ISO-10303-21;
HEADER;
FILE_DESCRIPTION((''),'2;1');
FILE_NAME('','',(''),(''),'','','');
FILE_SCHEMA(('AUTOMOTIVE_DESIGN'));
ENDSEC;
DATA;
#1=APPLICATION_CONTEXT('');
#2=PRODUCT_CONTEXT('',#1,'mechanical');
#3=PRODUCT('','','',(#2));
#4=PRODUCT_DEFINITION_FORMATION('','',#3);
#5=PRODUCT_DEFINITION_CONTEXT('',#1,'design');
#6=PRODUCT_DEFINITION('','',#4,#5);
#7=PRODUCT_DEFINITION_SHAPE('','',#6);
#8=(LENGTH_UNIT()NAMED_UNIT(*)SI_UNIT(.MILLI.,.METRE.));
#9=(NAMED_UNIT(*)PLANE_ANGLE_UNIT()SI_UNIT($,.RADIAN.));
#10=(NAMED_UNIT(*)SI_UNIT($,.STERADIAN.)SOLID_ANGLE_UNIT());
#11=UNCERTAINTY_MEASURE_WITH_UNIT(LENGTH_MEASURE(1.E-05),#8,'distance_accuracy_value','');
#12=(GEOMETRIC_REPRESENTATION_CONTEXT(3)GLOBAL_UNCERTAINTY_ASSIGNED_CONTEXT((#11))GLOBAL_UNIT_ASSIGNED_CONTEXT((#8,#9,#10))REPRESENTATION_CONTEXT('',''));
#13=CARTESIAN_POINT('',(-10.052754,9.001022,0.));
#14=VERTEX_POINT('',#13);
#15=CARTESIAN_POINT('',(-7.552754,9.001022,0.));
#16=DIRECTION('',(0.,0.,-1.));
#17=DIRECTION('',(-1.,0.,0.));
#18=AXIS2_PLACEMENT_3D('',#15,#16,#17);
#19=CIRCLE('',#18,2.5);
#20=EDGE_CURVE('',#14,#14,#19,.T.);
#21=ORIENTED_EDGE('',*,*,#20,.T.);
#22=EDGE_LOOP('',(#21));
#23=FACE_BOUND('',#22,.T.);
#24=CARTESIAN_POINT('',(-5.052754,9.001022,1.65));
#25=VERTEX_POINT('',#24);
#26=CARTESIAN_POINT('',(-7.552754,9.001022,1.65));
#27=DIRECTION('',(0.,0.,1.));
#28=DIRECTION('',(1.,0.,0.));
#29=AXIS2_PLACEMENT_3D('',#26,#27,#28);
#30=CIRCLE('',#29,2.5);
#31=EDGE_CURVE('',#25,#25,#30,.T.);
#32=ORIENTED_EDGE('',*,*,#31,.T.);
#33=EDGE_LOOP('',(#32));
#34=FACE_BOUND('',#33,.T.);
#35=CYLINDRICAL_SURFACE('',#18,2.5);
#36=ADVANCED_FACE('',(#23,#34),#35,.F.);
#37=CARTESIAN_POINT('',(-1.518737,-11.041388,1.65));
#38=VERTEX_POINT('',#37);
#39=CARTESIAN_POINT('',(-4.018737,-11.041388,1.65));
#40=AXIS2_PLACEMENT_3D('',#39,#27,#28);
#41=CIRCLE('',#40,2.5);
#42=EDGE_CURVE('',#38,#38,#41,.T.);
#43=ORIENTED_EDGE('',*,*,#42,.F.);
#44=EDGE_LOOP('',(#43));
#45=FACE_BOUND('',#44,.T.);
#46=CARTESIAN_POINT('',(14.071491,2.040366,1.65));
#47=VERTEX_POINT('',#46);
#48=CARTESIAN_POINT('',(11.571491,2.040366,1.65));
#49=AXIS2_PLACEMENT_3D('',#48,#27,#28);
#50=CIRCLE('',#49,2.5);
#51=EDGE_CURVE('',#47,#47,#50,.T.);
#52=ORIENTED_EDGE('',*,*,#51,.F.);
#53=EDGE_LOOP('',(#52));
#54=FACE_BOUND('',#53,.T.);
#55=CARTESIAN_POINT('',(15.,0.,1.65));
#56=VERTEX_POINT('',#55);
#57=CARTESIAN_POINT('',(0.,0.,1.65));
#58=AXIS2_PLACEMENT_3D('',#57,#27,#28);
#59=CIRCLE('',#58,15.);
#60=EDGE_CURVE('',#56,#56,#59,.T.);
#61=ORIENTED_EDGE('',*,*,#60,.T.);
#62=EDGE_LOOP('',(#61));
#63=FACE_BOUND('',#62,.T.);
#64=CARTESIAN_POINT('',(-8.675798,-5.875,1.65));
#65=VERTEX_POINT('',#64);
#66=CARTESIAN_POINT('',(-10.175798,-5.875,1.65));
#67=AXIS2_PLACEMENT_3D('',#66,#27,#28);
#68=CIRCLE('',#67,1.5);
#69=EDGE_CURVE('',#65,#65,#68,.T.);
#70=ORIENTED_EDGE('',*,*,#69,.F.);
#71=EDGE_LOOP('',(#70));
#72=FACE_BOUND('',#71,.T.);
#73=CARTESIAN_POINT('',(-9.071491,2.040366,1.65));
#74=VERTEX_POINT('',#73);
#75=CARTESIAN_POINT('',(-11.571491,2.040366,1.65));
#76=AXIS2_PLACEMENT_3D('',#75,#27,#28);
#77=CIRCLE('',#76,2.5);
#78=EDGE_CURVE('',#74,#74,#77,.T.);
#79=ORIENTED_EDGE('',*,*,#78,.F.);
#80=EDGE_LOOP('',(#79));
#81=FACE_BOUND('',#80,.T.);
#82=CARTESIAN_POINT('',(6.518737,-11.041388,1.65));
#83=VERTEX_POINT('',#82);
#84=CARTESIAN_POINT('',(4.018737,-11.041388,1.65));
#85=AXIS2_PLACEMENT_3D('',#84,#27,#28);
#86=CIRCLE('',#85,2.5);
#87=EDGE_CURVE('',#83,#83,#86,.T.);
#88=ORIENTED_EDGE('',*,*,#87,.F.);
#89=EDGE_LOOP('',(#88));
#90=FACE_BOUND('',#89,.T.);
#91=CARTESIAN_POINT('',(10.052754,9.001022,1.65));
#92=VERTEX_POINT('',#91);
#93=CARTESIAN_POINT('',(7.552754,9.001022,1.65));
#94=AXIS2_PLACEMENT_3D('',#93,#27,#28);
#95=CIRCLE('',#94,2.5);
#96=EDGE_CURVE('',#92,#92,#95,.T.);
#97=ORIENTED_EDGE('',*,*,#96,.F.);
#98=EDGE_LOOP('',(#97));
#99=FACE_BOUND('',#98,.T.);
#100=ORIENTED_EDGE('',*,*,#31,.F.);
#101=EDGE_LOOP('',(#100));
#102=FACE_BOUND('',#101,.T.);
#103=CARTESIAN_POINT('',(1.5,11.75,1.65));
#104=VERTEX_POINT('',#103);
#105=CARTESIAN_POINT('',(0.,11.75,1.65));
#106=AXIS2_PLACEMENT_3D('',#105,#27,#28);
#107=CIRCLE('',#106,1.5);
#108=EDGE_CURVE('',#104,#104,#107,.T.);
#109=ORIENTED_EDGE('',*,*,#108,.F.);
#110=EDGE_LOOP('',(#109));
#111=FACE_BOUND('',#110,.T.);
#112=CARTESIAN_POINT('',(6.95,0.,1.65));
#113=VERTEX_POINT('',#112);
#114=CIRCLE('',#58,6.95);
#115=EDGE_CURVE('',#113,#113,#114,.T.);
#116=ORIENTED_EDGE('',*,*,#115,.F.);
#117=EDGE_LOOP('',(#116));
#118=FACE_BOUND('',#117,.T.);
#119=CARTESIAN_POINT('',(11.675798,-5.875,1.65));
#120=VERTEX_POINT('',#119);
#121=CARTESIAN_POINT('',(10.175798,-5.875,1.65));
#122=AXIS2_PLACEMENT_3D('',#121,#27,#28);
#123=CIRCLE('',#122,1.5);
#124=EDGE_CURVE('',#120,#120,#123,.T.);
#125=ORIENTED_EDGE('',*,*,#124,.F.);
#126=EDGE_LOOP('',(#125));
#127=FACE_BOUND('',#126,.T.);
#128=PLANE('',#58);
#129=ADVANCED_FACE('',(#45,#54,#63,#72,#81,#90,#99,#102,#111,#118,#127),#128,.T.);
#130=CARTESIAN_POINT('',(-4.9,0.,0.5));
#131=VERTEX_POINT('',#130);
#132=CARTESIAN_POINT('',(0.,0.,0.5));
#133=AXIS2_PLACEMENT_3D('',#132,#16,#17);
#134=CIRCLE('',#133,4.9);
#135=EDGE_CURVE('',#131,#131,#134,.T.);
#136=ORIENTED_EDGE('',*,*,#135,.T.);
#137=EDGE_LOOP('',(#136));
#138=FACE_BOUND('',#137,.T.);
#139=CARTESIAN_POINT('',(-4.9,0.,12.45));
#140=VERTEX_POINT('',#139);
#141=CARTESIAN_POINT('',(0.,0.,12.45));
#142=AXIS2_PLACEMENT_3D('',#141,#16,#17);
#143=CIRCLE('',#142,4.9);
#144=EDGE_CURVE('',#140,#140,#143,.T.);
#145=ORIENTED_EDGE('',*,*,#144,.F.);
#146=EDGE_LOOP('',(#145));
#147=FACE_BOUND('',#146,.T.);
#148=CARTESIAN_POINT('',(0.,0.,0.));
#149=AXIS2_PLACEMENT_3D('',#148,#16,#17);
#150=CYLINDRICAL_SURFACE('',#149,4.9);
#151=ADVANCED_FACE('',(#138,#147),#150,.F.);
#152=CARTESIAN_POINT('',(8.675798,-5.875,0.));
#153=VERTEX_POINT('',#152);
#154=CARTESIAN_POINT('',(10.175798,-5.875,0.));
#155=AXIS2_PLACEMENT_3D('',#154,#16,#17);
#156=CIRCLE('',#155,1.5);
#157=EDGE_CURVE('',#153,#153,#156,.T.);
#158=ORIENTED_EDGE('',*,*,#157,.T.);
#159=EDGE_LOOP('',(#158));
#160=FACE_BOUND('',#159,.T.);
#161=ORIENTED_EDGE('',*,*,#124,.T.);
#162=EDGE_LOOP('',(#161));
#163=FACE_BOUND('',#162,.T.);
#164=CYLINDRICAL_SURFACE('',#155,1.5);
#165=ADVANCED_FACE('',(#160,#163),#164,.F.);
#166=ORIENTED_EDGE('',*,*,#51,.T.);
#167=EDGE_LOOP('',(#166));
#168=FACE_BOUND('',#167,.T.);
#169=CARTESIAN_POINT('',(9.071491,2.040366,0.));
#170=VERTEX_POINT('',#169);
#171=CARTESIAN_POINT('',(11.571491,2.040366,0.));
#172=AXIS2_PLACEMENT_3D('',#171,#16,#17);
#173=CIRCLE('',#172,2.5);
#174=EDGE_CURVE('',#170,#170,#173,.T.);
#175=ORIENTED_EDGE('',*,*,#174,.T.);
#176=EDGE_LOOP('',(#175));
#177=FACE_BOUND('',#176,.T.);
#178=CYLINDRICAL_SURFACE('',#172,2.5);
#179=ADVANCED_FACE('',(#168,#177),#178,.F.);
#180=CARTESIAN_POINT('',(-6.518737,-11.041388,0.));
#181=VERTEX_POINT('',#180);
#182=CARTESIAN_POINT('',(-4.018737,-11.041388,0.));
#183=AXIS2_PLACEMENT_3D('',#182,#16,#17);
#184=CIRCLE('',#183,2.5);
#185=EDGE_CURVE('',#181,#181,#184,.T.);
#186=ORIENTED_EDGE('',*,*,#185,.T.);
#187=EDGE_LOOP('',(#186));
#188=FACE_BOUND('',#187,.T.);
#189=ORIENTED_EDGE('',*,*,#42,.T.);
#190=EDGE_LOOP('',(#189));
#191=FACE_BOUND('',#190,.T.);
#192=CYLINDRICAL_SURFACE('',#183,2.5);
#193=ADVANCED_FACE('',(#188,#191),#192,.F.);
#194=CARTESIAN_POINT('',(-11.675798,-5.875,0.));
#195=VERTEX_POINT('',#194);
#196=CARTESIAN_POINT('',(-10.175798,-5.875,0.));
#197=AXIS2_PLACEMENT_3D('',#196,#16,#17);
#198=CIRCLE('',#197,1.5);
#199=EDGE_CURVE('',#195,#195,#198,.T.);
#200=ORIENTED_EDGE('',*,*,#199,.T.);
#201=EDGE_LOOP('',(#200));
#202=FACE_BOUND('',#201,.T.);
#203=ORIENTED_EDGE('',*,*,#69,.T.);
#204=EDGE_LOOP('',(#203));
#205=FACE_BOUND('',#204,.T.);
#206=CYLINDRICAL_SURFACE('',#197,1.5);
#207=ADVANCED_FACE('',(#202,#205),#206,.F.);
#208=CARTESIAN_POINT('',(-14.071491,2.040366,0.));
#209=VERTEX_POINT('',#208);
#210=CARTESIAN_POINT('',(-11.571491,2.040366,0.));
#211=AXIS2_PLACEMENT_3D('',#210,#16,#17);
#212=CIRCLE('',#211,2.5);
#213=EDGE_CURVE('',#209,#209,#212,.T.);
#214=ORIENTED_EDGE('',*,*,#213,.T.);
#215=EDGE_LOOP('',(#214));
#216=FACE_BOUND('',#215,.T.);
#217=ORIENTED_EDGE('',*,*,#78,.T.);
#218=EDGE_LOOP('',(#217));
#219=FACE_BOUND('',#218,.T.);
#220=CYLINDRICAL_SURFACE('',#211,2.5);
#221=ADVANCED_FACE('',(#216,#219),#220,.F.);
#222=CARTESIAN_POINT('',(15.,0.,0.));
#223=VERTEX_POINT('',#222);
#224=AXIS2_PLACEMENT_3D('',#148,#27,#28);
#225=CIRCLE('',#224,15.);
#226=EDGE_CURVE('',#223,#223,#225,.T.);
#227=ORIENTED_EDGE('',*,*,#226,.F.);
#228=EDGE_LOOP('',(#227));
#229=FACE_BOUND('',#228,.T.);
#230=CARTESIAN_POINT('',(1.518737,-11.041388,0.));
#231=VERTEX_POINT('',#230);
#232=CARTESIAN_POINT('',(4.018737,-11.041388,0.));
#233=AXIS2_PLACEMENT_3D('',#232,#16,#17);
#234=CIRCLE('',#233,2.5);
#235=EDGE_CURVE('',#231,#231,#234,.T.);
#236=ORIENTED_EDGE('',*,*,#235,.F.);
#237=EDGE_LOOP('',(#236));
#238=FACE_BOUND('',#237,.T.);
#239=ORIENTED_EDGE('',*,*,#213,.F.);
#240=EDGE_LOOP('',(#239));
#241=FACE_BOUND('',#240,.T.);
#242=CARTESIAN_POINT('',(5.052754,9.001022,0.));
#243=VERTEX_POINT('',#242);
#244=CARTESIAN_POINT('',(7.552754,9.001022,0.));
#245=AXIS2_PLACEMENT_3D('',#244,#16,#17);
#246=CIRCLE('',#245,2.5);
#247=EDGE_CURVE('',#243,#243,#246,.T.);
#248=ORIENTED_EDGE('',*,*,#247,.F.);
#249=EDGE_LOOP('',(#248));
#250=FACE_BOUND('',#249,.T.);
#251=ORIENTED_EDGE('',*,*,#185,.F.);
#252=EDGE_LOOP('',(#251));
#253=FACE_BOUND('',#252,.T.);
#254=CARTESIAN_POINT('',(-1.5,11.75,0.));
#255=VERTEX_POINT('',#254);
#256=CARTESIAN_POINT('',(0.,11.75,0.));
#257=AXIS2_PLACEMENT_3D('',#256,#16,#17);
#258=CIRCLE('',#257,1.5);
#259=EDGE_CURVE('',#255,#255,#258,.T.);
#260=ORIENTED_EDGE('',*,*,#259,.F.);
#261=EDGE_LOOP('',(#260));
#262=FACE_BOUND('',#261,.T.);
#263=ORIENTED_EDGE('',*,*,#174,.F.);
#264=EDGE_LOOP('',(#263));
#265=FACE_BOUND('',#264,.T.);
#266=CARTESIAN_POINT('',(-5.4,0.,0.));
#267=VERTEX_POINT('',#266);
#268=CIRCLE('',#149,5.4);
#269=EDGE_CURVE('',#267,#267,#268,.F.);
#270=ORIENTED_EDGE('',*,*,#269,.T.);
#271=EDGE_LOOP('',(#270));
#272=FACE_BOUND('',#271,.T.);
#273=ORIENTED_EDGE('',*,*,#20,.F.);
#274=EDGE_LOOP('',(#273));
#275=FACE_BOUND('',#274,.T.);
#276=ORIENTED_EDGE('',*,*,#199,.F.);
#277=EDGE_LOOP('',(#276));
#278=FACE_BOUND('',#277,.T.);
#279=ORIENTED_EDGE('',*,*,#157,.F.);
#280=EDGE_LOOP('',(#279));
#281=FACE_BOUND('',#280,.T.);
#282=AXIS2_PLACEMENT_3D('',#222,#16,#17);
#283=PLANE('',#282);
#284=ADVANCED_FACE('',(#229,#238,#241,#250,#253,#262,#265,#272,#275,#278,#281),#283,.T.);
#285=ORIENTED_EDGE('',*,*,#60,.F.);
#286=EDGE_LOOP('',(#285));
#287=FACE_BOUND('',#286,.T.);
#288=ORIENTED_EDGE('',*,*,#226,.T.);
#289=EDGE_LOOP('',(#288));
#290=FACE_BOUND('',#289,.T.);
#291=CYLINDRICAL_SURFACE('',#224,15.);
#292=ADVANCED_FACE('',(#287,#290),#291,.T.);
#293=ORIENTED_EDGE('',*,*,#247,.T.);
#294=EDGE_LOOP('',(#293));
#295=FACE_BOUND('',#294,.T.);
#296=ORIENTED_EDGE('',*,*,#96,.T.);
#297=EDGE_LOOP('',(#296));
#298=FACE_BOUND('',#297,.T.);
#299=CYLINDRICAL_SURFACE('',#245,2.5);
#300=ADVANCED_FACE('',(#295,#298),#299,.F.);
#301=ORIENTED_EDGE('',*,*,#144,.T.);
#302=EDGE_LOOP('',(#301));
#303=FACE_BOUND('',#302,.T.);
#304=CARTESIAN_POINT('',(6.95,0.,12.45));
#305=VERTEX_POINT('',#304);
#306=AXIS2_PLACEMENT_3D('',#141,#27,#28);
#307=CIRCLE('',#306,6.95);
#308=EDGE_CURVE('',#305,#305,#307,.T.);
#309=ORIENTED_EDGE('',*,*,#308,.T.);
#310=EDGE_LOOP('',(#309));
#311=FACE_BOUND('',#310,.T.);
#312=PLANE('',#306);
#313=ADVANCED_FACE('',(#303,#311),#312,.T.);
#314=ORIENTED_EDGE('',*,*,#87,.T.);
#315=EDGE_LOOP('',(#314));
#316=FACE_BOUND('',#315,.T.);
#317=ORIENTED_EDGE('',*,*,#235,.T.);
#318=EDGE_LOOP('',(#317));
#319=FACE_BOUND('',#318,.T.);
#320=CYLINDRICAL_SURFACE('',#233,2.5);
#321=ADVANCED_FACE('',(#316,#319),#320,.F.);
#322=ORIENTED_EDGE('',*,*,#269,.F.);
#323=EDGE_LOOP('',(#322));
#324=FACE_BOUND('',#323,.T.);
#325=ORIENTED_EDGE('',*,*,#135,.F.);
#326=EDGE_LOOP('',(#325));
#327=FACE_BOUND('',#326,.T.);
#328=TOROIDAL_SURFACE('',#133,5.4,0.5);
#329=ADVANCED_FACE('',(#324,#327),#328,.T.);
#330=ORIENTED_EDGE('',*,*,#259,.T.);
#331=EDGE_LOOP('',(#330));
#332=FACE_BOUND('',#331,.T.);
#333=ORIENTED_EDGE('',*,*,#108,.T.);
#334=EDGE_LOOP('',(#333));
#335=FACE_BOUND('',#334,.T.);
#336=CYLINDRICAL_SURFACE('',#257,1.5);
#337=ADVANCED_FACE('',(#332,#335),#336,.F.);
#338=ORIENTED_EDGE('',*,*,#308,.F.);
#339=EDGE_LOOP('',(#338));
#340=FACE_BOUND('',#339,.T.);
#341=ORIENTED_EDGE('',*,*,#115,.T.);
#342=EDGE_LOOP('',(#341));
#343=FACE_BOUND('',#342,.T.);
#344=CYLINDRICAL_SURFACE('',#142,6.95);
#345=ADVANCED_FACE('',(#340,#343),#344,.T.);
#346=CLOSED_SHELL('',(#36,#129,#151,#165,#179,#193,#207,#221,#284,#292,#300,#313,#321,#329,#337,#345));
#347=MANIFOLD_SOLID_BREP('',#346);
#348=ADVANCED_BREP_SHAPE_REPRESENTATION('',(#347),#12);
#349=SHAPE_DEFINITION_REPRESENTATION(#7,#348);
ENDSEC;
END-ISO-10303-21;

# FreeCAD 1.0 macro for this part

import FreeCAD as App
import Part
import Sketcher
from FreeCAD import Vector
Q = App.Units.Quantity


def edges_at(feature, points):
    """Names of the edges that pass closest to the given points."""
    edges = feature.Shape.Edges
    near = lambda p: min(range(len(edges)), key=lambda i: edges[i].distToShape(Part.Vertex(*p))[0])
    return sorted({f"Edge{near(p) + 1}" for p in points})

doc = App.newDocument("Part")
body = doc.addObject("PartDesign::Body", "Body")

# Sketch on XZ plane
sketch1 = body.newObject("Sketcher::SketchObject", "Sketch")
sketch1.AttachmentSupport = (doc.getObject("XZ_Plane"), [""])
sketch1.MapMode = "FlatFace"
sketch1.addGeometry([
    Part.LineSegment(Vector(0, 0, 0), Vector(0, 1.65, 0)),
    Part.LineSegment(Vector(0, 1.65, 0), Vector(15, 1.65, 0)),
    Part.LineSegment(Vector(15, 1.65, 0), Vector(15, 0, 0)),
    Part.LineSegment(Vector(15, 0, 0), Vector(0, 0, 0)),
], False)
sketch1.addConstraint([
    Sketcher.Constraint("Coincident", 0, 2, 1, 1),
    Sketcher.Constraint("Coincident", 1, 2, 2, 1),
    Sketcher.Constraint("Coincident", 2, 2, 3, 1),
    Sketcher.Constraint("Coincident", 3, 2, 0, 1),
    Sketcher.Constraint("Vertical", 0),
    Sketcher.Constraint("Horizontal", 1),
    Sketcher.Constraint("Vertical", 2),
    Sketcher.Constraint("Horizontal", 3),
    Sketcher.Constraint("Coincident", 3, 2, -1, 1),
    Sketcher.Constraint("DistanceX", 1, 1, 1, 2, Q("15 mm")),
    Sketcher.Constraint("DistanceY", 0, 1, 0, 2, Q("1.65 mm")),
])
revolution = body.newObject("PartDesign::Revolution", "Revolution")
revolution.Profile = sketch1
revolution.ReferenceAxis = (sketch1, ["V_Axis"])
revolution.Angle = 360

# Sketch on XY plane
sketch2 = body.newObject("Sketcher::SketchObject", "Sketch001")
sketch2.AttachmentSupport = (doc.getObject("XY_Plane"), [""])
sketch2.MapMode = "FlatFace"
sketch2.AttachmentOffset = App.Placement(Vector(0, 0, 1.65), App.Rotation())
sketch2.addGeometry(Part.Circle(Vector(0, 0, 0), Vector(0, 0, 1), 6.95), False)
sketch2.addConstraint([
    Sketcher.Constraint("Coincident", 0, 3, -1, 1),
    Sketcher.Constraint("Diameter", 0, Q("13.9 mm")),
])
pad1 = body.newObject("PartDesign::Pad", "Pad")
pad1.Profile = sketch2
pad1.Length = 10.8

# Sketch on XY plane
sketch3 = body.newObject("Sketcher::SketchObject", "Sketch002")
sketch3.AttachmentSupport = (doc.getObject("XY_Plane"), [""])
sketch3.MapMode = "FlatFace"
sketch3.addGeometry([
    Part.Circle(Vector(-7.552754, 9.001022, 0), Vector(0, 0, 1), 2.5),  # 0
    Part.Circle(Vector(-11.571491, 2.040366, 0), Vector(0, 0, 1), 2.5),  # 1
    Part.Circle(Vector(-4.018737, -11.041388, 0), Vector(0, 0, 1), 2.5),  # 2
    Part.Circle(Vector(4.018737, -11.041388, 0), Vector(0, 0, 1), 2.5),  # 3
    Part.Circle(Vector(11.571491, 2.040366, 0), Vector(0, 0, 1), 2.5),  # 4
    Part.Circle(Vector(7.552754, 9.001022, 0), Vector(0, 0, 1), 2.5),  # 5
], False)
sketch3.addConstraint([
    Sketcher.Constraint("Equal", 0, 1),
    Sketcher.Constraint("Equal", 1, 2),
    Sketcher.Constraint("Equal", 2, 3),
    Sketcher.Constraint("Equal", 3, 4),
    Sketcher.Constraint("Equal", 4, 5),
    Sketcher.Constraint("Symmetric", 2, 3, 3, 3, -2),
    Sketcher.Constraint("Symmetric", 1, 3, 4, 3, -2),
    Sketcher.Constraint("Symmetric", 0, 3, 5, 3, -2),
    Sketcher.Constraint("Diameter", 0, Q("5 mm")),
    Sketcher.Constraint("DistanceX", 1, 3, -1, 1, Q("11.571491 mm")),
    Sketcher.Constraint("DistanceY", 2, 3, -1, 1, Q("11.041388 mm")),
    Sketcher.Constraint("DistanceY", 2, 3, 0, 3, Q("20.042411 mm")),
    Sketcher.Constraint("DistanceX", 0, 3, 3, 3, Q("11.571491 mm")),
    Sketcher.Constraint("DistanceX", 0, 3, 5, 3, Q("15.105509 mm")),
    Sketcher.Constraint("DistanceY", -1, 1, 1, 3, Q("2.040366 mm")),
])
doc.recompute()
hole = body.newObject("PartDesign::Hole", "Hole")
hole.Profile = sketch3
hole.ThreadType = "None"
hole.Diameter = 5
hole.DepthType = "Dimension"
hole.Depth = 12.45
hole.DrillPoint = "Flat"
hole.Reversed = True

# Sketch on XY plane
sketch4 = body.newObject("Sketcher::SketchObject", "Sketch003")
sketch4.AttachmentSupport = (doc.getObject("XY_Plane"), [""])
sketch4.MapMode = "FlatFace"
sketch4.addGeometry([
    Part.Circle(Vector(0, 11.75, 0), Vector(0, 0, 1), 1.5),
    Part.Circle(Vector(-10.175798, -5.875, 0), Vector(0, 0, 1), 1.5),
    Part.Circle(Vector(10.175798, -5.875, 0), Vector(0, 0, 1), 1.5),
], False)
sketch4.addConstraint([
    Sketcher.Constraint("Equal", 0, 1),
    Sketcher.Constraint("Equal", 1, 2),
    Sketcher.Constraint("Symmetric", 1, 3, 2, 3, -2),
    Sketcher.Constraint("PointOnObject", 0, 3, -2),
    Sketcher.Constraint("Diameter", 0, Q("3 mm")),
    Sketcher.Constraint("DistanceY", -1, 1, 0, 3, Q("11.75 mm")),
    Sketcher.Constraint("DistanceY", 1, 3, -1, 1, Q("5.875 mm")),
    Sketcher.Constraint("DistanceX", 1, 3, -1, 1, Q("10.175798 mm")),
])
doc.recompute()
hole2 = body.newObject("PartDesign::Hole", "Hole001")
hole2.Profile = sketch4
hole2.ThreadType = "None"
hole2.Diameter = 3
hole2.DepthType = "Dimension"
hole2.Depth = 12.45
hole2.DrillPoint = "Flat"
hole2.Reversed = True

# Sketch on XY plane
sketch5 = body.newObject("Sketcher::SketchObject", "Sketch004")
sketch5.AttachmentSupport = (doc.getObject("XY_Plane"), [""])
sketch5.MapMode = "FlatFace"
sketch5.addGeometry(Part.Circle(Vector(0, 0, 0), Vector(0, 0, 1), 4.9), False)
sketch5.addConstraint([
    Sketcher.Constraint("Coincident", 0, 3, -1, 1),
    Sketcher.Constraint("Diameter", 0, Q("9.8 mm")),
])
doc.recompute()
hole3 = body.newObject("PartDesign::Hole", "Hole002")
hole3.Profile = sketch5
hole3.ThreadType = "None"
hole3.Diameter = 9.8
hole3.DepthType = "Dimension"
hole3.Depth = 12.45
hole3.DrillPoint = "Flat"
hole3.Reversed = True
doc.recompute()

fillet = body.newObject("PartDesign::Fillet", "Fillet")
fillet.Base = (hole3, edges_at(hole3, [(-4.9, 0, 0)]))
fillet.Radius = 0.5

doc.recompute()
